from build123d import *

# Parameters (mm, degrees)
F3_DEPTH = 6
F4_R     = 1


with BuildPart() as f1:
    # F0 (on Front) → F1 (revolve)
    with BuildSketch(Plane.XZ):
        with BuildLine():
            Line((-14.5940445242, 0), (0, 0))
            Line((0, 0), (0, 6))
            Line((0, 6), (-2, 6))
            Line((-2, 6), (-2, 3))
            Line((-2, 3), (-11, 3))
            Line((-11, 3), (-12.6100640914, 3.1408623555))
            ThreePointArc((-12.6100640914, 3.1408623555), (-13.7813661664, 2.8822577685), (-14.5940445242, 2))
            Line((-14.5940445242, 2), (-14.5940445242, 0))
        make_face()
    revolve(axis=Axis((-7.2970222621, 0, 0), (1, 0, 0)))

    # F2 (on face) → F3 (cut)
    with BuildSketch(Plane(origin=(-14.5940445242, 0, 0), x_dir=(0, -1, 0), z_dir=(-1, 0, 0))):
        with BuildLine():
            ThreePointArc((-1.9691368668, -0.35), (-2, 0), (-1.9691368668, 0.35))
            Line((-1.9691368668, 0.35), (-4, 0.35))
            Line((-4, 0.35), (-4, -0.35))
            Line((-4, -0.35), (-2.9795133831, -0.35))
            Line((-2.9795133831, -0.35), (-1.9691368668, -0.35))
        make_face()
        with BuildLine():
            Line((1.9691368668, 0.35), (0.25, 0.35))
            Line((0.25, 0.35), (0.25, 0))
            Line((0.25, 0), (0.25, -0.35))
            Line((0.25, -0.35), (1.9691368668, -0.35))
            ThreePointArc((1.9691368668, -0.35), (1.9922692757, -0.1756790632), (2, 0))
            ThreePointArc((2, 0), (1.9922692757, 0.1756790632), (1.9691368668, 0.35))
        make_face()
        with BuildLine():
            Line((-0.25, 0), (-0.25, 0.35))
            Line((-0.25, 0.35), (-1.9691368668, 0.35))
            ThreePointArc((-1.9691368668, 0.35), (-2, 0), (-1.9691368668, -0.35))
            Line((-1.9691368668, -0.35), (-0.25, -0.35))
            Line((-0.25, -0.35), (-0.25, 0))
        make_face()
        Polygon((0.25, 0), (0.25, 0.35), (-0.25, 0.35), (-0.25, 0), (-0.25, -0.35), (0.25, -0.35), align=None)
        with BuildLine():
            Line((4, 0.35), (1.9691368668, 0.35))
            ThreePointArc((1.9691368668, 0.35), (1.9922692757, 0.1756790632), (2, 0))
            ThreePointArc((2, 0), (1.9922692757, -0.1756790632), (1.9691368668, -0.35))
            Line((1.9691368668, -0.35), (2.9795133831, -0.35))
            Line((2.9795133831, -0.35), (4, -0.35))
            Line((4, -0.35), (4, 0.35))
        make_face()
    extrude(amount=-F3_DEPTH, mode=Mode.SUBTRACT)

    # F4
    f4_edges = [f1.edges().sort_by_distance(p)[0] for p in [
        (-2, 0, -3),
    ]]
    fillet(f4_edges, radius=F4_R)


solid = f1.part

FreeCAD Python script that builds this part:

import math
import FreeCAD as App
import Part
import Sketcher
Q = App.Units.Quantity


def edges_at(feature, points):
    """Names of the edges that pass closest to the given points."""
    edges = feature.Shape.Edges
    near = lambda p: min(range(len(edges)), key=lambda i: edges[i].distToShape(Part.Vertex(*p))[0])
    return sorted({f"Edge{near(p) + 1}" for p in points})


def add_polygon(sketch, points):
    """Adds a closed chain of lines whose ends are joined by coincident constraints."""
    first, n = sketch.GeometryCount, len(points)
    for a, b in zip(points, points[1:] + points[:1]):
        sketch.addGeometry(Part.LineSegment(App.Vector(*a, 0), App.Vector(*b, 0)), False)
    for i in range(n):
        sketch.addConstraint(Sketcher.Constraint("Coincident", first + i, 2, first + (i + 1) % n, 1))

doc = App.newDocument("Part")
body = doc.addObject("PartDesign::Body", "Body")

# Sketch on XZ plane
sketch1 = doc.addObject("Sketcher::SketchObject", "Sketch")
body.addObject(sketch1)
sketch1.AttachmentSupport = (doc.XZ_Plane, [""])
sketch1.MapMode = "FlatFace"
sketch1.addGeometry([
    Part.LineSegment(App.Vector(-14.6, 0, 0), App.Vector(0, 0, 0)),  # 0
    Part.LineSegment(App.Vector(0, 0, 0), App.Vector(0, 6, 0)),  # 1
    Part.LineSegment(App.Vector(0, 6, 0), App.Vector(-2, 6, 0)),  # 2
    Part.LineSegment(App.Vector(-2, 6, 0), App.Vector(-2, 3, 0)),  # 3
    Part.LineSegment(App.Vector(-2, 3, 0), App.Vector(-11, 3, 0)),  # 4
    Part.LineSegment(App.Vector(-11, 3, 0), App.Vector(-12.6, 3.1, 0)),  # 5
    Part.ArcOfCircle(Part.Circle(App.Vector(-12.8, 1.1, 0), App.Vector(0, 0, 1), 2), math.radians(85), math.radians(155)),  # 6
    Part.LineSegment(App.Vector(-14.6, 2, 0), App.Vector(-14.6, 0, 0)),  # 7
], False)
sketch1.addConstraint([
    Sketcher.Constraint("Coincident", 0, 2, 1, 1),
    Sketcher.Constraint("Coincident", 1, 2, 2, 1),
    Sketcher.Constraint("Coincident", 2, 2, 3, 1),
    Sketcher.Constraint("Coincident", 3, 2, 4, 1),
    Sketcher.Constraint("Coincident", 4, 2, 5, 1),
    Sketcher.Constraint("Tangent", 5, 2, 6, 1),
    Sketcher.Constraint("Coincident", 6, 2, 7, 1),
    Sketcher.Constraint("Coincident", 7, 2, 0, 1),
    Sketcher.Constraint("Horizontal", 0),
    Sketcher.Constraint("Vertical", 1),
    Sketcher.Constraint("Horizontal", 2),
    Sketcher.Constraint("Vertical", 3),
    Sketcher.Constraint("Horizontal", 4),
    Sketcher.Constraint("Vertical", 7),
    Sketcher.Constraint("Coincident", 0, 2, -1, 1),
    Sketcher.Constraint("Equal", 2, 7),
    Sketcher.Constraint("Radius", 6, 2.0),
    Sketcher.Constraint("DistanceX", 2, 2, 2, 1, 2.0),
    Sketcher.Constraint("DistanceX", 4, 2, 4, 1, 9.0),
    Sketcher.Constraint("DistanceY", 1, 1, 1, 2, 6.0),
    Sketcher.Constraint("DistanceY", 3, 2, 3, 1, 3.0),
    Sketcher.Constraint("Angle", 5, Q("175 deg")),
    Sketcher.Constraint("DistanceX", 0, 1, 0, 2, 14.594045),
])
revolution = doc.addObject("PartDesign::Revolution", "Revolution")
body.addObject(revolution)
revolution.Profile = sketch1
revolution.ReferenceAxis = (sketch1, ["H_Axis"])
revolution.Angle = 360

# Sketch on YZ plane
sketch2 = doc.addObject("Sketcher::SketchObject", "Sketch001")
body.addObject(sketch2)
sketch2.AttachmentSupport = (doc.YZ_Plane, [""])
sketch2.MapMode = "FlatFace"
sketch2.AttachmentOffset = App.Placement(App.Vector(0, 0, -14.594045), App.Rotation())
add_polygon(sketch2, [(4, 0.3), (4, -0.3), (-4, -0.3), (-4, 0.3)])  # lines 0-3
sketch2.addConstraint([
    Sketcher.Constraint("Vertical", 0),
    Sketcher.Constraint("Horizontal", 1),
    Sketcher.Constraint("Vertical", 2),
    Sketcher.Constraint("Horizontal", 3),
    Sketcher.Constraint("Symmetric", 0, 2, 2, 2, -1, 1),
    Sketcher.Constraint("DistanceX", 1, 2, 1, 1, 8.0),
    Sketcher.Constraint("DistanceY", 0, 2, 0, 1, 0.7),
])
pocket1 = doc.addObject("PartDesign::Pocket", "Pocket")
body.addObject(pocket1)
pocket1.Profile = sketch2
pocket1.Length = 6
pocket1.Reversed = True
doc.recompute()

fillet = doc.addObject("PartDesign::Fillet", "Fillet")
body.addObject(fillet)
fillet.Base = (pocket1, edges_at(pocket1, [(-2, 0, -3)]))
fillet.Radius = 1

doc.recompute()
